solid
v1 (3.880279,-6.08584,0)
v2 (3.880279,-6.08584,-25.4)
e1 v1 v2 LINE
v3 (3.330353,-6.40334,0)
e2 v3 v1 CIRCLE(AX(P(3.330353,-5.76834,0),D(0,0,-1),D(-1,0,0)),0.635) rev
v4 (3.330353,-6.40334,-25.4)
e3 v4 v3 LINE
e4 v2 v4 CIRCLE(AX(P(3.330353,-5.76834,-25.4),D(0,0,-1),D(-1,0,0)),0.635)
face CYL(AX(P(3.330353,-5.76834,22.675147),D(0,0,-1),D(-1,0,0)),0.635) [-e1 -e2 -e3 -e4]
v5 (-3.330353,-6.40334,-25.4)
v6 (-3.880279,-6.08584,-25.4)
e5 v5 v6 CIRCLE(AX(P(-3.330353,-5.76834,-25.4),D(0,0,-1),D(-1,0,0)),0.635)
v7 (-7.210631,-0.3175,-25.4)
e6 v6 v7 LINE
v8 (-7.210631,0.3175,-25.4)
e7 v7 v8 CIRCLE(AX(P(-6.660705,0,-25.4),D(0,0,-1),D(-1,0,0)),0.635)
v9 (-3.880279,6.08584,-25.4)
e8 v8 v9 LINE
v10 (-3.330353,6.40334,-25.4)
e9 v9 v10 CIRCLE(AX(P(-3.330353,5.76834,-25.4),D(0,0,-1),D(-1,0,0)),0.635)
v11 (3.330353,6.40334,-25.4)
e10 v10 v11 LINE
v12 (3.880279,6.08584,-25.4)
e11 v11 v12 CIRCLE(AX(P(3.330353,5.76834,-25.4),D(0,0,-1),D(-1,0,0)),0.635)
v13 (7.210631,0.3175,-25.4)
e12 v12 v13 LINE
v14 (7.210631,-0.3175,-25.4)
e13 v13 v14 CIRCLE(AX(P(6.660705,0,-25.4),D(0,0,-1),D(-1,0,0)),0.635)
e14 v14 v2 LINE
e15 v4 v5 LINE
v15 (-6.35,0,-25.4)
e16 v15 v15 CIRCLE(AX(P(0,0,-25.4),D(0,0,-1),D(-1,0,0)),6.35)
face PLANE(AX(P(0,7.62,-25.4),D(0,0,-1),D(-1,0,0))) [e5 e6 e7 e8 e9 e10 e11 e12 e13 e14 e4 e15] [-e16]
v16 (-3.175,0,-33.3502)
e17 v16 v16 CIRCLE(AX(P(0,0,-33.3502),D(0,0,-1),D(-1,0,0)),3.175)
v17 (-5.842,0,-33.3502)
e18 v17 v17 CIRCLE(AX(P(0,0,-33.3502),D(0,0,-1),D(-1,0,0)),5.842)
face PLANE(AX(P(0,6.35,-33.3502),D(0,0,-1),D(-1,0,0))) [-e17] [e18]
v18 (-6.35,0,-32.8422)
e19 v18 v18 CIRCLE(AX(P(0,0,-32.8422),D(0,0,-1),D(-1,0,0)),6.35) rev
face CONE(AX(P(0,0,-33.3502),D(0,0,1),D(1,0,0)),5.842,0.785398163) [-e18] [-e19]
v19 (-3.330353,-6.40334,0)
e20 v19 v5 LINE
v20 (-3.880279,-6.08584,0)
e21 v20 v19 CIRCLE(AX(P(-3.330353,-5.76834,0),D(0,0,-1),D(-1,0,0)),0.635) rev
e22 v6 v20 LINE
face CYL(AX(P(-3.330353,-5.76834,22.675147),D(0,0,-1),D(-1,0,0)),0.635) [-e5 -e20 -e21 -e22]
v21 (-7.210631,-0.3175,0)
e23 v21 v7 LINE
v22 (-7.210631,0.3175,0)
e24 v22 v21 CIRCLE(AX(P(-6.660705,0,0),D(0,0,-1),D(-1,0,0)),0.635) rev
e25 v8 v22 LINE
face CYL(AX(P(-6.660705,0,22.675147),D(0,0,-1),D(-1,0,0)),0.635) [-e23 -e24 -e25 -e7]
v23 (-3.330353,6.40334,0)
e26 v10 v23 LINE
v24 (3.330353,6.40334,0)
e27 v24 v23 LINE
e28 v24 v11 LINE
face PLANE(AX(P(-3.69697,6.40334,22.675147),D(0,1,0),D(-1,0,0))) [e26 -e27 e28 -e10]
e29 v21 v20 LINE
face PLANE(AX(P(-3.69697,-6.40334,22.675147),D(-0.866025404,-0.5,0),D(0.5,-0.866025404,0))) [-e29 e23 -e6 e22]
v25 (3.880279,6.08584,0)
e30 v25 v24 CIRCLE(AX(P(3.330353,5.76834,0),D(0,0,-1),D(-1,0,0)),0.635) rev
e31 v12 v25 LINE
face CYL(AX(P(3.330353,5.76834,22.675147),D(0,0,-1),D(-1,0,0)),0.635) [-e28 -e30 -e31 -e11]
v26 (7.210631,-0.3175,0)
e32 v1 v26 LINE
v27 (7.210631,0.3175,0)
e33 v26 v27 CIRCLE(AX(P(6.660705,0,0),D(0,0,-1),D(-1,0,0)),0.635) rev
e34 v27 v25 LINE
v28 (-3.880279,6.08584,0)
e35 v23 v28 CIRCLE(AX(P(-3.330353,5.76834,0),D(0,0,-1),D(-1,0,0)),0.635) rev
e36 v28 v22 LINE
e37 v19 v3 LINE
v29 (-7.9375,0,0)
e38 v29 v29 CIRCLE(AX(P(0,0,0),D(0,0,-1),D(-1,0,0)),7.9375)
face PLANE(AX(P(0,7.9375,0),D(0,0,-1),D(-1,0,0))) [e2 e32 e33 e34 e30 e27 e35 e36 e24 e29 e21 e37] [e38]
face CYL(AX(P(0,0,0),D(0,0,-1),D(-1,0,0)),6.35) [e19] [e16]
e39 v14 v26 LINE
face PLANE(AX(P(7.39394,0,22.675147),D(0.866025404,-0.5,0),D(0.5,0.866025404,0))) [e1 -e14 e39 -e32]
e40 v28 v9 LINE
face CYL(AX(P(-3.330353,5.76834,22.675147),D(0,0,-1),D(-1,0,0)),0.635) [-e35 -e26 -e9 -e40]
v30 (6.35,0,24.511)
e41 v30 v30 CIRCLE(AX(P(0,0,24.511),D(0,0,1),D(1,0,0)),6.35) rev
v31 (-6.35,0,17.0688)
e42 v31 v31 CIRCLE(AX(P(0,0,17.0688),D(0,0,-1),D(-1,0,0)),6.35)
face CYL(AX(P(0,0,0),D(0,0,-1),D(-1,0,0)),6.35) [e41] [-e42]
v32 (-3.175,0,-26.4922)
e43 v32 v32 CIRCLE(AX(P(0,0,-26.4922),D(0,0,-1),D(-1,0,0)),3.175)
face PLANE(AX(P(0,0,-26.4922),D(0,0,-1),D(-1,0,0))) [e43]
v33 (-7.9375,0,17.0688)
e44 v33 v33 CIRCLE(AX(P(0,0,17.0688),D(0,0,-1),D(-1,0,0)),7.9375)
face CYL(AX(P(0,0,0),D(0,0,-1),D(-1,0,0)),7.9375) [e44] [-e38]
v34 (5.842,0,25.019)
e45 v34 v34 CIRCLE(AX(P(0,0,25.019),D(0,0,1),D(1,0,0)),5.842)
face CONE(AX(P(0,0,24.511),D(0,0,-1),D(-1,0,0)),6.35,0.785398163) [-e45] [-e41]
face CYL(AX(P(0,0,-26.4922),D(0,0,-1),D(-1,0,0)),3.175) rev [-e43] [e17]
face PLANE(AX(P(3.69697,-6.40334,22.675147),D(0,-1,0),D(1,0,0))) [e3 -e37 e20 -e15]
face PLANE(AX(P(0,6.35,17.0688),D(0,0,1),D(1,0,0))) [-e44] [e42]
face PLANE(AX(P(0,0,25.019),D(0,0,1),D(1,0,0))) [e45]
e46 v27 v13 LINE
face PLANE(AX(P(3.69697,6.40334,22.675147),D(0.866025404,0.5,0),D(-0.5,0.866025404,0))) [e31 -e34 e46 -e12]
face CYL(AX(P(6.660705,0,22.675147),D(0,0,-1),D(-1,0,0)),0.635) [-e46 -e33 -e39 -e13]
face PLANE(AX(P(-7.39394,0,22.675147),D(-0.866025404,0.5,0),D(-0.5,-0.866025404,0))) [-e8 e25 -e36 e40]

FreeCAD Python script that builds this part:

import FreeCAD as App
import Part
import Sketcher
from FreeCAD import Vector
Q = App.Units.Quantity


def edges_at(feature, points):
    """Names of the edges that pass closest to the given points."""
    edges = feature.Shape.Edges
    near = lambda p: min(range(len(edges)), key=lambda i: edges[i].distToShape(Part.Vertex(*p))[0])
    return sorted({f"Edge{near(p) + 1}" for p in points})


def add_polygon(sketch, points):
    """Adds a closed chain of lines whose ends are joined by coincident constraints."""
    first, n = sketch.GeometryCount, len(points)
    for a, b in zip(points, points[1:] + points[:1]):
        sketch.addGeometry(Part.LineSegment(App.Vector(*a, 0), App.Vector(*b, 0)), False)
    for i in range(n):
        sketch.addConstraint(Sketcher.Constraint("Coincident", first + i, 2, first + (i + 1) % n, 1))

doc = App.newDocument("Part")
body = doc.addObject("PartDesign::Body", "Body")

# Sketch on YZ plane
sketch1 = body.newObject("Sketcher::SketchObject", "Sketch")
sketch1.AttachmentSupport = (doc.getObject("YZ_Plane"), [""])
sketch1.MapMode = "FlatFace"
add_polygon(sketch1, [(6.35, 25.02), (0, 25.02), (0, -33.35), (6.35, -33.35), (6.35, -25.4), (7.62, -25.4), (7.62, 0), (7.94, 0), (7.94, 17.07), (6.35, 17.07)])  # lines 0-9
sketch1.addConstraint([
    Sketcher.Constraint("Horizontal", 0),
    Sketcher.Constraint("Vertical", 1),
    Sketcher.Constraint("Horizontal", 2),
    Sketcher.Constraint("Vertical", 3),
    Sketcher.Constraint("Horizontal", 4),
    Sketcher.Constraint("Vertical", 5),
    Sketcher.Constraint("Horizontal", 6),
    Sketcher.Constraint("Vertical", 7),
    Sketcher.Constraint("Horizontal", 8),
    Sketcher.Constraint("Vertical", 9),
    Sketcher.Constraint("PointOnObject", 0, 2, -2),
    Sketcher.Constraint("PointOnObject", 5, 2, -1),
    Sketcher.Constraint("Vertical", 3, 2, 8, 2),
    Sketcher.Constraint("Equal", 3, 9),
    Sketcher.Constraint("DistanceY", 5, 1, 5, 2, Q("1 in")),
    Sketcher.Constraint("DistanceX", 0, 2, 0, 1, Q("0.25 in")),
    Sketcher.Constraint("DistanceX", 4, 1, 4, 2, Q("0.05 in")),
    Sketcher.Constraint("DistanceX", 8, 2, 8, 1, Q("0.0625 in")),
    Sketcher.Constraint("DistanceY", 1, 2, 1, 1, Q("2.298 in")),
    Sketcher.Constraint("DistanceY", 3, 1, 3, 2, Q("0.313 in")),
])
revolution = body.newObject("PartDesign::Revolution", "Revolution")
revolution.Profile = sketch1
revolution.ReferenceAxis = (sketch1, ["V_Axis"])
revolution.Angle = 360

# Sketch on XY plane
sketch2 = body.newObject("Sketcher::SketchObject", "Sketch001")
sketch2.AttachmentSupport = (doc.getObject("XY_Plane"), [""])
sketch2.MapMode = "FlatFace"
sketch2.AttachmentOffset = App.Placement(Vector(0, 0, -1 * 25.4), App.Rotation())
add_polygon(sketch2, [(15, 15), (15, -15), (-15, -15), (-15, 15)])  # lines 0-3
add_polygon(sketch2, [(4, 6), (-4, 6), (-7, 0), (-4, -6), (4, -6), (7, 0)])  # lines 4-9
sketch2.addConstraint([
    Sketcher.Constraint("Vertical", 0),
    Sketcher.Constraint("Horizontal", 1),
    Sketcher.Constraint("Vertical", 2),
    Sketcher.Constraint("Horizontal", 3),
    Sketcher.Constraint("Horizontal", 4),
    Sketcher.Constraint("Horizontal", 7),
    Sketcher.Constraint("Symmetric", 0, 2, 2, 2, -1, 1),
    Sketcher.Constraint("Symmetric", 4, 2, 7, 2, -1, 1),
    Sketcher.Constraint("Symmetric", 5, 2, 8, 2, -1, 1),
    Sketcher.Constraint("PointOnObject", 5, 2, -1),
    Sketcher.Constraint("Parallel", 6, 9),
    Sketcher.Constraint("Vertical", 4, 2, 6, 2),
    Sketcher.Constraint("Equal", 3, 0),
    Sketcher.Constraint("Angle", 5, Q("-120 deg")),
    Sketcher.Constraint("DistanceX", 4, 2, 4, 1, Q("0.2911 in")),
    Sketcher.Constraint("Distance", 5, Q("0.2911 in")),
    Sketcher.Constraint("DistanceX", 1, 2, 1, 1, Q("30.382 mm")),
])
pocket1 = body.newObject("PartDesign::Pocket", "Pocket")
pocket1.Profile = sketch2
pocket1.Length = Q("1 in")
pocket1.Reversed = True
doc.recompute()

chamfer = body.newObject("PartDesign::Chamfer", "Chamfer")
chamfer.Base = (pocket1, edges_at(pocket1, [(6.35, 0, 25.019), (6.35, 0, -33.35)]))
chamfer.Size = Q("0.02 in")

# Sketch on XY plane
sketch3 = body.newObject("Sketcher::SketchObject", "Sketch002")
sketch3.AttachmentSupport = (doc.getObject("XY_Plane"), [""])
sketch3.MapMode = "FlatFace"
sketch3.AttachmentOffset = App.Placement(Vector(0, 0, -1.313 * 25.4), App.Rotation())
sketch3.addGeometry(Part.Circle(Vector(0, 0, 0), Vector(0, 0, 1), 3.2), False)
sketch3.addConstraint([
    Sketcher.Constraint("Coincident", 0, 3, -1, 1),
    Sketcher.Constraint("Diameter", 0, Q("0.25 in")),
])
pocket2 = body.newObject("PartDesign::Pocket", "Pocket001")
pocket2.Profile = sketch3
pocket2.Length = Q("0.27 in")
pocket2.Reversed = True
doc.recompute()

fillet = body.newObject("PartDesign::Fillet", "Fillet")
fillet.Base = (pocket2, edges_at(pocket2, [
    (-3.697, 6.403, -12.7),
    (3.697, 6.403, -12.7),
    (7.394, 0, -12.7),
    (3.697, -6.403, -12.7),
    (-3.697, -6.403, -12.7),
    (-7.394, 0, -12.7),
]))
fillet.Radius = Q("0.025 in")

doc.recompute()
